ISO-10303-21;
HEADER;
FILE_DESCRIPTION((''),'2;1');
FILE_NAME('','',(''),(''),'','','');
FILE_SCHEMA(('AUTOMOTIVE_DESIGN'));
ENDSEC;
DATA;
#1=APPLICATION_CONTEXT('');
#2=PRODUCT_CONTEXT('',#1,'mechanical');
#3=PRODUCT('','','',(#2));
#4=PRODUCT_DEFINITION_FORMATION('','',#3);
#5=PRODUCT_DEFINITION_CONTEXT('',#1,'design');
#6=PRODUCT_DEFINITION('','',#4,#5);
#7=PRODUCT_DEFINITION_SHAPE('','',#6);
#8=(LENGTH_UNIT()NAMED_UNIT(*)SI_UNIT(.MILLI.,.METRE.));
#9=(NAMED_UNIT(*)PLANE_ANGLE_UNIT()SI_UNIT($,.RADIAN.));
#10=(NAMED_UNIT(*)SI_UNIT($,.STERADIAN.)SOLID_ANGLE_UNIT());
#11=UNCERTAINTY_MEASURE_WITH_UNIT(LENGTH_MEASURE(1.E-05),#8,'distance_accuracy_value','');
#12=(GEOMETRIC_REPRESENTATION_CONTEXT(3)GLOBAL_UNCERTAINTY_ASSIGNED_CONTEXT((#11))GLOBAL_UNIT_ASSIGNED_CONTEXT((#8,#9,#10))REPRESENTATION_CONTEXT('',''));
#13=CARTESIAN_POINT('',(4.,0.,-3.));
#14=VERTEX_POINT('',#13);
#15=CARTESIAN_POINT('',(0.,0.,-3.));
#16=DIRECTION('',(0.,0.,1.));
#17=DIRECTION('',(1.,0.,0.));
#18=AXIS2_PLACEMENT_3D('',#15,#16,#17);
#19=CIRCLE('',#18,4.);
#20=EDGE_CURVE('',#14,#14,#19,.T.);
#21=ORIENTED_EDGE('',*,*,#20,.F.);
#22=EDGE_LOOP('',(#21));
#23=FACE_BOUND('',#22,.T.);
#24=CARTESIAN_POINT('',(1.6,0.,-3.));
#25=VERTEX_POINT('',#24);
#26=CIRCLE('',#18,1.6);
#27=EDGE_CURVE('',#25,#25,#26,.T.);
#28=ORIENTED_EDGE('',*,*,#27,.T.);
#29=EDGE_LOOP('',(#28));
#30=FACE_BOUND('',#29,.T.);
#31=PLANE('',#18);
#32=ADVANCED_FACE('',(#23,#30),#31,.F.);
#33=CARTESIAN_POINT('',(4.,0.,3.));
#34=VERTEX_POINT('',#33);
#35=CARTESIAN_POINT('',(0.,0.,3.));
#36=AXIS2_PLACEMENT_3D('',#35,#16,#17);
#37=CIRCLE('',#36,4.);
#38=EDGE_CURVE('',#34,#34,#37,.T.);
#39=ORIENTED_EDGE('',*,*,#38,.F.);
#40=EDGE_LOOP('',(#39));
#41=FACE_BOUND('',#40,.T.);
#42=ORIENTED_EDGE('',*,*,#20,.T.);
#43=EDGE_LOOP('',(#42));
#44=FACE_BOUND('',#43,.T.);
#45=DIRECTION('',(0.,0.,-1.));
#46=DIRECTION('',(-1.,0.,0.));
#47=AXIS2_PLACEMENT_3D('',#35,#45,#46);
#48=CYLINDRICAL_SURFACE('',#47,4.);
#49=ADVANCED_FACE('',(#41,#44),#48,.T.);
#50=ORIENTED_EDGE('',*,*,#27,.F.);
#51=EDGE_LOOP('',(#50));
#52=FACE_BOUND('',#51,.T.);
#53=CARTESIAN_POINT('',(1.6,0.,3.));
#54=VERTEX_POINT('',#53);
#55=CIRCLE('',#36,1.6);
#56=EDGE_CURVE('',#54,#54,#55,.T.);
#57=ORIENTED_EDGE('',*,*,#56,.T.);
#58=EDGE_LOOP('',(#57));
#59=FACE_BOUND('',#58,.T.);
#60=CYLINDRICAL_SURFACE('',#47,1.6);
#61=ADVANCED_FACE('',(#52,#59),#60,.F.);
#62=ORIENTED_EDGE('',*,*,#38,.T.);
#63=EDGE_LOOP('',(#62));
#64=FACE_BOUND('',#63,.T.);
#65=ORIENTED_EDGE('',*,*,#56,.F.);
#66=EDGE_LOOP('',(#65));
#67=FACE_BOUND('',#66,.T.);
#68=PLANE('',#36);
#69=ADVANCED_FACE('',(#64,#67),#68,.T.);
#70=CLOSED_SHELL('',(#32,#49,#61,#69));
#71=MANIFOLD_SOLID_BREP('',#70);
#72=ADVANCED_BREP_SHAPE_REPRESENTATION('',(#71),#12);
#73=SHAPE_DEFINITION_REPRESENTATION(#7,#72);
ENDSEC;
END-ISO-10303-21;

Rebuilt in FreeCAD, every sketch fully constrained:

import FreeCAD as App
import Part
import Sketcher

V = App.Vector

doc = App.newDocument("Part")
body = doc.addObject("PartDesign::Body", "Body")

# Sketch on XY plane
sketch1 = body.newObject("Sketcher::SketchObject", "Sketch")
sketch1.AttachmentSupport = (doc.getObject("XY_Plane"), [""])
sketch1.MapMode = "FlatFace"
sketch1.addGeometry(Part.Circle(V(0, 0, 0), V(0, 0, 1), 4), False)
sketch1.addGeometry(Part.Circle(V(0, 0, 0), V(0, 0, 1), 1.6), False)
sketch1.addConstraint(Sketcher.Constraint("Coincident", 0, 3, -1, 1))
sketch1.addConstraint(Sketcher.Constraint("Coincident", 1, 3, -1, 1))
sketch1.addConstraint(Sketcher.Constraint("Diameter", 0, 8.0))
sketch1.addConstraint(Sketcher.Constraint("Diameter", 1, 3.2))
pad1 = body.newObject("PartDesign::Pad", "Pad")
pad1.Profile = sketch1
pad1.Length = 6
pad1.Midplane = True

doc.recompute()
